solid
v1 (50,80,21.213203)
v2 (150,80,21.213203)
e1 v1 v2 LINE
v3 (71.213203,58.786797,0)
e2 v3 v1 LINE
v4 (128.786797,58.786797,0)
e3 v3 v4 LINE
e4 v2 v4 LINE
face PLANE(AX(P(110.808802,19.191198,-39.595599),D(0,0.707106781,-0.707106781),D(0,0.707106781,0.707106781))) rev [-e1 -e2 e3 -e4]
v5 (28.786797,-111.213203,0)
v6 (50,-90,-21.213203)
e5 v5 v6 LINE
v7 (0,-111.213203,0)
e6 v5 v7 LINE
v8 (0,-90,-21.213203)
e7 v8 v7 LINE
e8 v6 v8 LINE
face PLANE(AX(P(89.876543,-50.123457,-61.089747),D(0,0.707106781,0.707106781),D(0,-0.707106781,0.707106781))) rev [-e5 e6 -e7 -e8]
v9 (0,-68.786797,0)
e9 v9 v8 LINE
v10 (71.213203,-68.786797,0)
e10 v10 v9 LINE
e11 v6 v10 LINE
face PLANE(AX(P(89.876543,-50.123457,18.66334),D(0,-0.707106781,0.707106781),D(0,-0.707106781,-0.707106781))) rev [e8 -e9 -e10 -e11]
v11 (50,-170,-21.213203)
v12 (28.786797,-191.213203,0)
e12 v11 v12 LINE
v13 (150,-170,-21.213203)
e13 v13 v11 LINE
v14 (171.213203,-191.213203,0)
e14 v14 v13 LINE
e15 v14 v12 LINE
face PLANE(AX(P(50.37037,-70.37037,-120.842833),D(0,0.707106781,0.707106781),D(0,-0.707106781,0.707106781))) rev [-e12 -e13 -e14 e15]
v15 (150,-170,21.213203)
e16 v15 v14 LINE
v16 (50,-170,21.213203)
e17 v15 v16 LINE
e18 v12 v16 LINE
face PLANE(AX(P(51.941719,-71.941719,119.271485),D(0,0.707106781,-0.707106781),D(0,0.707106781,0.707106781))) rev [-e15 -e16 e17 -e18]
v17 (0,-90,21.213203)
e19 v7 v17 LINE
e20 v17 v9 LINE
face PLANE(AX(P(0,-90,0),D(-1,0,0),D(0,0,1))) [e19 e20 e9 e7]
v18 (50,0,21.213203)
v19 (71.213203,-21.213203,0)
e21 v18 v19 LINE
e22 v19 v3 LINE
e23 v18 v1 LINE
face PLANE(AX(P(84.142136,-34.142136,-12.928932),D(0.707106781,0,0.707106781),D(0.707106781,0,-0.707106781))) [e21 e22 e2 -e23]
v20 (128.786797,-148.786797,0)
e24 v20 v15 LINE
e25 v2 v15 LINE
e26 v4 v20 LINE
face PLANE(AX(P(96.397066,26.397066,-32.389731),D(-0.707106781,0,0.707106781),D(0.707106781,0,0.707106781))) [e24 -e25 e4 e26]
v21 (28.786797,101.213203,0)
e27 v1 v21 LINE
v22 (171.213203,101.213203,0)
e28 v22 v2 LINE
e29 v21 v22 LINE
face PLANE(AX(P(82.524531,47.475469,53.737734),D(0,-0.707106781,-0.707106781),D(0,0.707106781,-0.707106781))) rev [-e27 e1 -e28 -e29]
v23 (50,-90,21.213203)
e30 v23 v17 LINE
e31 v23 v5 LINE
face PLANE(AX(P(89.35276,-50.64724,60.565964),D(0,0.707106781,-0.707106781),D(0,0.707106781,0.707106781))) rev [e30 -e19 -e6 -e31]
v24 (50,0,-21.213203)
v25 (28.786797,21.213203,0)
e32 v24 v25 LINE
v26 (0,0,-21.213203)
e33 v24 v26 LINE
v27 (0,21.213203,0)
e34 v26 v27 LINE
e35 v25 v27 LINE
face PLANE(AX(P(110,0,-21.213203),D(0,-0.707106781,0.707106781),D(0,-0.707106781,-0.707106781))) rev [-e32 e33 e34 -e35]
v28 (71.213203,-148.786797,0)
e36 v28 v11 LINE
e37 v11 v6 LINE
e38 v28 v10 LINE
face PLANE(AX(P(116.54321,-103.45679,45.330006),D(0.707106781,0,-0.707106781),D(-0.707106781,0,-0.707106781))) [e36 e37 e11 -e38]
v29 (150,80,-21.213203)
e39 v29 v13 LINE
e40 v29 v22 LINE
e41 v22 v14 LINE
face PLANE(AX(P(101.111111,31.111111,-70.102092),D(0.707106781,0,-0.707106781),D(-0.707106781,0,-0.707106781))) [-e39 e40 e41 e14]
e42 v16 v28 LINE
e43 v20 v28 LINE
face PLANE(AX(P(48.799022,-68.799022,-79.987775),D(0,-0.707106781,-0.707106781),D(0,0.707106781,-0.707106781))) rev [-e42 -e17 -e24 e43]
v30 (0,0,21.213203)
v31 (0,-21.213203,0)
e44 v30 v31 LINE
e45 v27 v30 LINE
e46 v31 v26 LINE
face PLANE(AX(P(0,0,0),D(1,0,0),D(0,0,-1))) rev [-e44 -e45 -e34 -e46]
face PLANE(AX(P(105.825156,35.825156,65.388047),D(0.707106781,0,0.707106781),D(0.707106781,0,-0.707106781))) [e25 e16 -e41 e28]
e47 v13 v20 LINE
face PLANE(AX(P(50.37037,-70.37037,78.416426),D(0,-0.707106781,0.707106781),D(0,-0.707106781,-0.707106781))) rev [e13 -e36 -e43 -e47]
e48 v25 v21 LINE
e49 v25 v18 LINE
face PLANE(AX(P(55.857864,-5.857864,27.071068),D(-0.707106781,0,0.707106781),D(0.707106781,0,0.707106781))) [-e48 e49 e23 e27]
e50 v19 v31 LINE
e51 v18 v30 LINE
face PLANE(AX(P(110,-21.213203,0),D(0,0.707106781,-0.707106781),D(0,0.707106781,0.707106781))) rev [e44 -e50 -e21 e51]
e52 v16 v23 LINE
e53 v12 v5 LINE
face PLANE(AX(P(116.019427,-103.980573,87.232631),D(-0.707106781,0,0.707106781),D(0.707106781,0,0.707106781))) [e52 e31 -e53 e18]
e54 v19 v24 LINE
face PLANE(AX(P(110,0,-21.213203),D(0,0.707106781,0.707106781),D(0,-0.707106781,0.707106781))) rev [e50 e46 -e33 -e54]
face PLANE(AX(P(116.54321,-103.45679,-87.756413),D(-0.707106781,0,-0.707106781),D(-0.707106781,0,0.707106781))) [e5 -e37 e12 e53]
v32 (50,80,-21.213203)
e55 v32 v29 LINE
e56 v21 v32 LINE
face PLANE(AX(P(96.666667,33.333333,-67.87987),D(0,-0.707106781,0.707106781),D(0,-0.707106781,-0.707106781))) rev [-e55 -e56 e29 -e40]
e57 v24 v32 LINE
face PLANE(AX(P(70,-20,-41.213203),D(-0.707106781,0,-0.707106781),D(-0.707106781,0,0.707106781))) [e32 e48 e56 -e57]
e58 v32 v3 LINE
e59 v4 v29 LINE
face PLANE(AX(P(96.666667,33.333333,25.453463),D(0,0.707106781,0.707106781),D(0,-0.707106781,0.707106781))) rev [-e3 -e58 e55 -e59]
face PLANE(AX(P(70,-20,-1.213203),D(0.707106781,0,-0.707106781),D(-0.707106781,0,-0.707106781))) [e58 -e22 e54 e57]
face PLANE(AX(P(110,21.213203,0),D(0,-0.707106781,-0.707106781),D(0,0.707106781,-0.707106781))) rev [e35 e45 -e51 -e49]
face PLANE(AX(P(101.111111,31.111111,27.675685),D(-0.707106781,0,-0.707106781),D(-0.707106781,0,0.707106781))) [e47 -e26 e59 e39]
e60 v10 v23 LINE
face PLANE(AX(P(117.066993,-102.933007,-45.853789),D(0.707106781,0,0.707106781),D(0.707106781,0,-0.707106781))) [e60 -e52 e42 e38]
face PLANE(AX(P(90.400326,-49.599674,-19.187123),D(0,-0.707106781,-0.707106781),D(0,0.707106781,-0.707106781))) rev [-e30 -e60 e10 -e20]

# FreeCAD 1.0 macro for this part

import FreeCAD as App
import Part
import Sketcher
from FreeCAD import Vector
Q = App.Units.Quantity


def add_polygon(sketch, points):
    """Adds a closed chain of lines whose ends are joined by coincident constraints."""
    first, n = sketch.GeometryCount, len(points)
    for a, b in zip(points, points[1:] + points[:1]):
        sketch.addGeometry(Part.LineSegment(App.Vector(*a, 0), App.Vector(*b, 0)), False)
    for i in range(n):
        sketch.addConstraint(Sketcher.Constraint("Coincident", first + i, 2, first + (i + 1) % n, 1))

doc = App.newDocument("Part")
body = doc.addObject("PartDesign::Body", "Body")

sketch1 = body.newObject("Sketcher::SketchObject", "Sketch")
sketch1.AttachmentSupport = (doc.getObject("YZ_Plane"), [""])
sketch1.MapMode = "FlatFace"
add_polygon(sketch1, [(-21, 0), (0, -21), (21, 0), (0, 21)])
sketch1.addConstraint([
    Sketcher.Constraint("Symmetric", 0, 2, 2, 2, -1, 1),
    Sketcher.Constraint("Symmetric", 1, 2, 3, 2, -1, 1),
    Sketcher.Constraint("PointOnObject", 0, 2, -2),
    Sketcher.Constraint("PointOnObject", 1, 2, -1),
    Sketcher.Constraint("Perpendicular", 0, 1),
    Sketcher.Constraint("Distance", 0, Q("30 mm")),
])

sketch2 = body.newObject("Sketcher::SketchObject", "Sketch001")
sketch2.AttachmentSupport = (doc.getObject("XY_Plane"), [""])
sketch2.MapMode = "FlatFace"
sketch2.addGeometry([
    Part.LineSegment(Vector(0, 0, 0), Vector(50, 0, 0)),
    Part.LineSegment(Vector(50, 0, 0), Vector(50, 80, 0)),
    Part.LineSegment(Vector(50, 80, 0), Vector(150, 80, 0)),
    Part.LineSegment(Vector(150, 80, 0), Vector(150, -170, 0)),
    Part.LineSegment(Vector(150, -170, 0), Vector(50, -170, 0)),
    Part.LineSegment(Vector(50, -170, 0), Vector(50, -90, 0)),
    Part.LineSegment(Vector(50, -90, 0), Vector(0, -90, 0)),
], False)
sketch2.addConstraint([
    Sketcher.Constraint("Coincident", 0, 2, 1, 1),
    Sketcher.Constraint("Coincident", 1, 2, 2, 1),
    Sketcher.Constraint("Coincident", 2, 2, 3, 1),
    Sketcher.Constraint("Coincident", 3, 2, 4, 1),
    Sketcher.Constraint("Coincident", 4, 2, 5, 1),
    Sketcher.Constraint("Coincident", 5, 2, 6, 1),
    Sketcher.Constraint("Horizontal", 0),
    Sketcher.Constraint("Vertical", 1),
    Sketcher.Constraint("Horizontal", 2),
    Sketcher.Constraint("Vertical", 3),
    Sketcher.Constraint("Horizontal", 4),
    Sketcher.Constraint("Vertical", 5),
    Sketcher.Constraint("Horizontal", 6),
    Sketcher.Constraint("Coincident", 0, 1, -1, 1),
    Sketcher.Constraint("PointOnObject", 6, 2, -2),
    Sketcher.Constraint("Vertical", 1, 2, 4, 2),
    Sketcher.Constraint("Equal", 1, 5),
    Sketcher.Constraint("DistanceX", 0, 1, 0, 2, Q("50 mm")),
    Sketcher.Constraint("DistanceX", 2, 1, 2, 2, Q("100 mm")),
    Sketcher.Constraint("DistanceY", 1, 1, 1, 2, Q("80 mm")),
    Sketcher.Constraint("DistanceY", 3, 2, 3, 1, Q("250 mm")),
])
doc.recompute()

additivepipe = body.newObject("PartDesign::AdditivePipe", "AdditivePipe")
additivepipe.Profile = sketch1
additivepipe.Spine = (sketch2, ["Edge1", "Edge2", "Edge3", "Edge4", "Edge5", "Edge6", "Edge7"])
additivepipe.Transition = "Right corner"

doc.recompute()
